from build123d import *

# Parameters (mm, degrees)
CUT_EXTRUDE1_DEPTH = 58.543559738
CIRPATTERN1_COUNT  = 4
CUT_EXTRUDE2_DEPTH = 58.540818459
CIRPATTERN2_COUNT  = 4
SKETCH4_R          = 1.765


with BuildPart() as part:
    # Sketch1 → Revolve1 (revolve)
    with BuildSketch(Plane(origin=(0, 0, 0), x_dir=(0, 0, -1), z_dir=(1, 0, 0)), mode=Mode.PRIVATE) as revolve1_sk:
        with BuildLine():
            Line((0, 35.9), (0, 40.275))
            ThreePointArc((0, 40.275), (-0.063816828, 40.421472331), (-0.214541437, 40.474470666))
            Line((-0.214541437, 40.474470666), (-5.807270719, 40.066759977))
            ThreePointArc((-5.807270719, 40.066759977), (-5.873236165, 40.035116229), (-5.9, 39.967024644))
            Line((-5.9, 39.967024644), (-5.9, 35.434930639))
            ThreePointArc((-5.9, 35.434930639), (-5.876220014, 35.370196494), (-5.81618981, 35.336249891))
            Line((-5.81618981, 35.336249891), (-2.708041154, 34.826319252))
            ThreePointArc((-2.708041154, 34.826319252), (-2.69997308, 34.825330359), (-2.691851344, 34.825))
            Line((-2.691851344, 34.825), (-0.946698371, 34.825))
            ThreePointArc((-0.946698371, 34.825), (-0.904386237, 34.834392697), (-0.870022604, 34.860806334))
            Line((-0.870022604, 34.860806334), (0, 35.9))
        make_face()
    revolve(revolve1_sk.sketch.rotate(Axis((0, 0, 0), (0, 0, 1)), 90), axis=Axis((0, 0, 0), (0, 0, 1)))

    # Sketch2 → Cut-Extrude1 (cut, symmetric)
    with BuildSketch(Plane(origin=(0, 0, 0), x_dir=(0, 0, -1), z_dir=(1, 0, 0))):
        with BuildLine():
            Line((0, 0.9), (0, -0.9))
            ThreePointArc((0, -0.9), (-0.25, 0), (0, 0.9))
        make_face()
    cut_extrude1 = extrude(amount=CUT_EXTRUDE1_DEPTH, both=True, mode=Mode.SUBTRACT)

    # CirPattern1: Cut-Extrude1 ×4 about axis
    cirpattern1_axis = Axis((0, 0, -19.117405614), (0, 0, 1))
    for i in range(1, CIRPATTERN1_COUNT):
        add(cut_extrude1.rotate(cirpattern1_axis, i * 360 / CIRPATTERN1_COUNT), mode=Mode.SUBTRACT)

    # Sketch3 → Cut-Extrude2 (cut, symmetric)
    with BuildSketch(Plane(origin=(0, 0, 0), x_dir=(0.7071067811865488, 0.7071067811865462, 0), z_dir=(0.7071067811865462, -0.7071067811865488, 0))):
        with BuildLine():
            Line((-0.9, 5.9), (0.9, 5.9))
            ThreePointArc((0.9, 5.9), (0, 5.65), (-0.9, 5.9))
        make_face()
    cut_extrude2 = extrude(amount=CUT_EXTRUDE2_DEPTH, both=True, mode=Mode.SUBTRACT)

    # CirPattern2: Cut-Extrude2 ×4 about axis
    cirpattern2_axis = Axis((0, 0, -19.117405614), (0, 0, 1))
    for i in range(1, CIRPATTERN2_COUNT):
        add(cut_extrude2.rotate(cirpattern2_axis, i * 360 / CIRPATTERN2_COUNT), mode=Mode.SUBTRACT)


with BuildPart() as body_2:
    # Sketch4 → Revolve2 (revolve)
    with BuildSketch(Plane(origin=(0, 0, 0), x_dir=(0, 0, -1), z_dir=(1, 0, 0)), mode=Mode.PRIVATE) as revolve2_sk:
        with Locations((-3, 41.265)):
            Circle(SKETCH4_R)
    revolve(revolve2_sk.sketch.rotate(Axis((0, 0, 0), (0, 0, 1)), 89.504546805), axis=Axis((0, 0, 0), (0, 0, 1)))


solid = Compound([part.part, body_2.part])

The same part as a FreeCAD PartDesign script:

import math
import FreeCAD as App
import Part
import Sketcher

V = App.Vector
Q = App.Units.Quantity

doc = App.newDocument("Part")
params = doc.addObject("Spreadsheet::Sheet", "Params")
for row, (alias, value) in enumerate([
    ("sketch1_radius", "0.2 mm"),
    ("sketch1_radius2", "0.1 mm"),
    ("revolution_angle", "360 deg"),
    ("sketch2_width", "1.8 mm"),
    ("pocket1_length", "117.087119 mm"),
    ("sketch3_width", "1.8 mm"),
    ("pocket2_length", "117.081637 mm"),
    ("sketch4_diameter", "3.53 mm"),
    ("revolution2_angle", "360 deg"),
], start=1):
    params.set(f"A{row}", alias)
    params.set(f"B{row}", "=" + value)
    params.setAlias(f"B{row}", alias)

body = doc.addObject("PartDesign::Body", "Body")

# Sketch on YZ plane
sketch1 = body.newObject("Sketcher::SketchObject", "Sketch")
sketch1.AttachmentSupport = (doc.getObject("YZ_Plane"), [""])
sketch1.MapMode = "FlatFace"
sketch1.addGeometry([
    Part.LineSegment(V(35.9, 0, 0), V(40.275, 0, 0)),  # 0
    Part.ArcOfCircle(Part.Circle(V(40.275, 0.2, 0), V(0, 0, 1), 0.2), math.radians(-90), math.radians(4)),  # 1
    Part.LineSegment(V(40.474, 0.215, 0), V(40.067, 5.807, 0)),  # 2
    Part.ArcOfCircle(Part.Circle(V(39.967, 5.8, 0), V(0, 0, 1), 0.1), math.radians(4), math.radians(90)),  # 3
    Part.LineSegment(V(39.967, 5.9, 0), V(35.435, 5.9, 0)),  # 4
    Part.ArcOfCircle(Part.Circle(V(35.435, 5.8, 0), V(0, 0, 1), 0.1), math.radians(90), math.radians(171)),  # 5
    Part.LineSegment(V(35.336, 5.816, 0), V(34.826, 2.708, 0)),  # 6
    Part.ArcOfCircle(Part.Circle(V(34.925, 2.692, 0), V(0, 0, 1), 0.1), math.radians(170.68), math.radians(180)),  # 7
    Part.LineSegment(V(34.825, 2.692, 0), V(34.825, 0.947, 0)),  # 8
    Part.ArcOfCircle(Part.Circle(V(34.925, 0.947, 0), V(0, 0, 1), 0.1), math.radians(180), math.radians(230)),  # 9
    Part.LineSegment(V(34.861, 0.87, 0), V(35.9, 0, 0)),  # 10
], False)
sketch1.addConstraint([
    Sketcher.Constraint("Tangent", 0, 2, 1, 1),
    Sketcher.Constraint("Tangent", 1, 2, 2, 1),
    Sketcher.Constraint("Tangent", 2, 2, 3, 1),
    Sketcher.Constraint("Tangent", 3, 2, 4, 1),
    Sketcher.Constraint("Tangent", 4, 2, 5, 1),
    Sketcher.Constraint("Tangent", 5, 2, 6, 1),
    Sketcher.Constraint("Tangent", 6, 2, 7, 1),
    Sketcher.Constraint("Tangent", 7, 2, 8, 1),
    Sketcher.Constraint("Tangent", 8, 2, 9, 1),
    Sketcher.Constraint("Tangent", 9, 2, 10, 1),
    Sketcher.Constraint("Coincident", 10, 2, 0, 1),
    Sketcher.Constraint("Horizontal", 0),
    Sketcher.Constraint("Horizontal", 4),
    Sketcher.Constraint("Vertical", 8),
    Sketcher.Constraint("Equal", 3, 5),
    Sketcher.Constraint("Equal", 5, 7),
    Sketcher.Constraint("Equal", 7, 9),
    Sketcher.Constraint("PointOnObject", 0, 2, -1),
    Sketcher.Constraint("Radius", 1, Q("0.2 mm")),
    Sketcher.Constraint("Radius", 3, Q("0.1 mm")),
    Sketcher.Constraint("DistanceY", -1, 1, 3, 3, Q("5.8 mm")),
    Sketcher.Constraint("DistanceX", -1, 1, 10, 2, Q("35.9 mm")),
    Sketcher.Constraint("DistanceX", 0, 1, 0, 2, Q("4.375 mm")),
    Sketcher.Constraint("DistanceX", 7, 3, 1, 3, Q("5.35 mm")),
    Sketcher.Constraint("Distance", 6, Q("3.149701 mm")),
    Sketcher.Constraint("DistanceY", -1, 1, 9, 3, Q("0.946698 mm")),
    Sketcher.Constraint("Distance", 2, Q("5.607571 mm")),
    Sketcher.Constraint("DistanceX", 4, 2, 4, 1, Q("4.532094 mm")),
])
sketch1.setExpression("Constraints[18]", "Params.sketch1_radius")
sketch1.setExpression("Constraints[19]", "Params.sketch1_radius2")
revolution = body.newObject("PartDesign::Revolution", "Revolution")
revolution.Profile = sketch1
revolution.ReferenceAxis = (sketch1, ["V_Axis"])
revolution.setExpression("Angle", "Params.revolution_angle")

# Sketch on YZ plane
sketch2 = body.newObject("Sketcher::SketchObject", "Sketch001")
sketch2.AttachmentSupport = (doc.getObject("YZ_Plane"), [""])
sketch2.MapMode = "FlatFace"
sketch2.addGeometry([
    Part.LineSegment(V(-0.9, 0, 0), V(0.9, 0, 0)),
    Part.ArcOfCircle(Part.Circle(V(0, -1.5, 0), V(0, 0, 1), 1.7), math.radians(59), math.radians(121)),
], False)
sketch2.addConstraint([
    Sketcher.Constraint("Coincident", 0, 1, 1, 2),
    Sketcher.Constraint("Coincident", 1, 1, 0, 2),
    Sketcher.Constraint("Horizontal", 0),
    Sketcher.Constraint("Symmetric", 0, 1, 1, 1, -1, 1),
    Sketcher.Constraint("DistanceX", 0, 1, 0, 2, Q("1.8 mm")),
    Sketcher.Constraint("Radius", 1, Q("1.745 mm")),
])
sketch2.setExpression("Constraints[4]", "Params.sketch2_width")
pocket1 = body.newObject("PartDesign::Pocket", "Pocket")
pocket1.Profile = sketch2
pocket1.setExpression("Length", "Params.pocket1_length")
pocket1.Midplane = True
doc.recompute()

polarpattern = body.newObject("PartDesign::PolarPattern", "PolarPattern")
polarpattern.Originals = [pocket1]
polarpattern.Axis = (doc.getObject("Z_Axis"), [""])
polarpattern.Angle = 360
polarpattern.Occurrences = 4
body.Tip = polarpattern

# Sketch on an angled plane
sketch3 = body.newObject("Sketcher::SketchObject", "Sketch002")
sketch3.Placement = App.Placement(V(0, 0, 0), App.Rotation(V(0.707106781, 0.707106781, 0), V(0, 0, 0.999999999), V(0.707106781, -0.707106781, 0), "ZXY"))
sketch3.addGeometry([
    Part.LineSegment(V(0.9, 5.9, 0), V(-0.9, 5.9, 0)),
    Part.ArcOfCircle(Part.Circle(V(0, 7.4, 0), V(0, 0, 1), 1.7), math.radians(-121), math.radians(-59)),
], False)
sketch3.addConstraint([
    Sketcher.Constraint("Coincident", 0, 1, 1, 2),
    Sketcher.Constraint("Coincident", 1, 1, 0, 2),
    Sketcher.Constraint("Horizontal", 0),
    Sketcher.Constraint("PointOnObject", 1, 3, -2),
    Sketcher.Constraint("DistanceX", 0, 2, 0, 1, Q("1.8 mm")),
    Sketcher.Constraint("Radius", 1, Q("1.745 mm")),
    Sketcher.Constraint("DistanceY", -1, 1, 0, 1, Q("5.9 mm")),
])
sketch3.setExpression("Constraints[4]", "Params.sketch3_width")
pocket2 = body.newObject("PartDesign::Pocket", "Pocket001")
pocket2.Profile = sketch3
pocket2.setExpression("Length", "Params.pocket2_length")
pocket2.Midplane = True
doc.recompute()

polarpattern2 = body.newObject("PartDesign::PolarPattern", "PolarPattern001")
polarpattern2.Originals = [pocket2]
polarpattern2.Axis = (doc.getObject("Z_Axis"), [""])
polarpattern2.Angle = 360
polarpattern2.Occurrences = 4
body.Tip = polarpattern2
body2 = doc.addObject("PartDesign::Body", "Body001")

# Sketch on YZ plane
sketch4 = body2.newObject("Sketcher::SketchObject", "Sketch003")
sketch4.AttachmentSupport = (doc.getObject("YZ_Plane001"), [""])
sketch4.MapMode = "FlatFace"
sketch4.addGeometry(Part.Circle(V(41.3, 3, 0), V(0, 0, 1), 1.8), False)
sketch4.addConstraint([
    Sketcher.Constraint("Diameter", 0, Q("3.53 mm")),
    Sketcher.Constraint("DistanceY", -1, 1, 0, 3, Q("3 mm")),
    Sketcher.Constraint("DistanceX", -1, 1, 0, 3, Q("41.265 mm")),
])
sketch4.setExpression("Constraints[0]", "Params.sketch4_diameter")
revolution2 = body2.newObject("PartDesign::Revolution", "Revolution001")
revolution2.Profile = sketch4
revolution2.ReferenceAxis = (sketch4, ["V_Axis"])
revolution2.setExpression("Angle", "Params.revolution2_angle")

doc.recompute()
